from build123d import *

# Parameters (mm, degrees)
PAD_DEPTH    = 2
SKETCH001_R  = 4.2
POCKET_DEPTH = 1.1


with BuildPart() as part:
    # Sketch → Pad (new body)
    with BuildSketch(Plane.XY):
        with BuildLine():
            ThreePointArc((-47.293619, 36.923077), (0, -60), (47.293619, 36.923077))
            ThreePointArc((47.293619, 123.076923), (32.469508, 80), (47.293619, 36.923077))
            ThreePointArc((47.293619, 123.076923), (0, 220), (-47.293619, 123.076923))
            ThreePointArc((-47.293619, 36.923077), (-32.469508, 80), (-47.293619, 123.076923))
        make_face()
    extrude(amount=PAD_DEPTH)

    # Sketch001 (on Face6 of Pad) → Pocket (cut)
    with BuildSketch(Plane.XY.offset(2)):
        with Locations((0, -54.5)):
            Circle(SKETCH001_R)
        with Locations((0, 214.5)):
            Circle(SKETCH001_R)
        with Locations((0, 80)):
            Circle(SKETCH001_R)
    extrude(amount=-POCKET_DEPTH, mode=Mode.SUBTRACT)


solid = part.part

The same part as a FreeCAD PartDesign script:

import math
import FreeCAD as App
import Part
import Sketcher
from FreeCAD import Vector

doc = App.newDocument("Part")
body = doc.addObject("PartDesign::Body", "Body")

# Sketch on XY plane
sketch1 = body.newObject("Sketcher::SketchObject", "Sketch")
sketch1.AttachmentSupport = (doc.getObject("XY_Plane"), [""])
sketch1.MapMode = "FlatFace"
sketch1.addGeometry(Part.ArcOfCircle(Part.Circle(Vector(0, 0, 0), Vector(0, 0, 1), 60), math.radians(142.020128), math.radians(397.979872)), False)
sketch1.addGeometry(Part.ArcOfCircle(Part.Circle(Vector(102.469509, 80, 0), Vector(0, 0, 1), 70.000001), math.radians(142.020128), math.radians(217.979872)), False)
sketch1.addGeometry(Part.ArcOfCircle(Part.Circle(Vector(0, 160, 0), Vector(0, 0, 1), 60), math.radians(-37.979872), math.radians(217.979872)), False)
sketch1.addGeometry(Part.ArcOfCircle(Part.Circle(Vector(-102.469509, 80, 0), Vector(0, 0, 1), 70.000001), math.radians(-37.979872), math.radians(37.979872)), False)
sketch1.addConstraint(Sketcher.Constraint("Tangent", 0, 2, 1, 2))
sketch1.addConstraint(Sketcher.Constraint("Tangent", 1, 1, 2, 1))
sketch1.addConstraint(Sketcher.Constraint("Tangent", 2, 2, 3, 2))
sketch1.addConstraint(Sketcher.Constraint("Tangent", 3, 1, 0, 1))
sketch1.addConstraint(Sketcher.Constraint("Coincident", 0, 3, -1, 1))
sketch1.addConstraint(Sketcher.Constraint("Equal", 0, 2))
sketch1.addConstraint(Sketcher.Constraint("Equal", 1, 3))
sketch1.addConstraint(Sketcher.Constraint("PointOnObject", 2, 3, -2))
sketch1.addConstraint(Sketcher.Constraint("Radius", 0, 60.0))
sketch1.addConstraint(Sketcher.Constraint("Radius", 1, 70.000001))
sketch1.addConstraint(Sketcher.Constraint("DistanceY", -1, 1, 1, 3, 80.0))
pad1 = body.newObject("PartDesign::Pad", "Pad")
pad1.Profile = sketch1
pad1.Length = 2

# Sketch on XY plane
sketch2 = body.newObject("Sketcher::SketchObject", "Sketch001")
sketch2.AttachmentSupport = (doc.getObject("XY_Plane"), [""])
sketch2.MapMode = "FlatFace"
sketch2.AttachmentOffset = App.Placement(Vector(0, 0, 2), App.Rotation())
sketch2.addGeometry(Part.Circle(Vector(0, -54.5, 0), Vector(0, 0, 1), 4.2), False)
sketch2.addGeometry(Part.Circle(Vector(0, 214.5, 0), Vector(0, 0, 1), 4.2), False)
sketch2.addGeometry(Part.Circle(Vector(0, 80, 0), Vector(0, 0, 1), 4.2), False)
sketch2.addConstraint(Sketcher.Constraint("Equal", 0, 1))
sketch2.addConstraint(Sketcher.Constraint("Equal", 1, 2))
sketch2.addConstraint(Sketcher.Constraint("PointOnObject", 0, 3, -2))
sketch2.addConstraint(Sketcher.Constraint("PointOnObject", 1, 3, -2))
sketch2.addConstraint(Sketcher.Constraint("PointOnObject", 2, 3, -2))
sketch2.addConstraint(Sketcher.Constraint("Diameter", 0, 8.4))
sketch2.addConstraint(Sketcher.Constraint("DistanceY", -1, 1, 2, 3, 80.0))
sketch2.addConstraint(Sketcher.Constraint("DistanceY", 0, 3, 1, 3, 269.0))
sketch2.addConstraint(Sketcher.Constraint("DistanceY", 0, 3, -1, 1, 54.5))
pocket1 = body.newObject("PartDesign::Pocket", "Pocket")
pocket1.Profile = sketch2
pocket1.Length = 1.1

doc.recompute()
